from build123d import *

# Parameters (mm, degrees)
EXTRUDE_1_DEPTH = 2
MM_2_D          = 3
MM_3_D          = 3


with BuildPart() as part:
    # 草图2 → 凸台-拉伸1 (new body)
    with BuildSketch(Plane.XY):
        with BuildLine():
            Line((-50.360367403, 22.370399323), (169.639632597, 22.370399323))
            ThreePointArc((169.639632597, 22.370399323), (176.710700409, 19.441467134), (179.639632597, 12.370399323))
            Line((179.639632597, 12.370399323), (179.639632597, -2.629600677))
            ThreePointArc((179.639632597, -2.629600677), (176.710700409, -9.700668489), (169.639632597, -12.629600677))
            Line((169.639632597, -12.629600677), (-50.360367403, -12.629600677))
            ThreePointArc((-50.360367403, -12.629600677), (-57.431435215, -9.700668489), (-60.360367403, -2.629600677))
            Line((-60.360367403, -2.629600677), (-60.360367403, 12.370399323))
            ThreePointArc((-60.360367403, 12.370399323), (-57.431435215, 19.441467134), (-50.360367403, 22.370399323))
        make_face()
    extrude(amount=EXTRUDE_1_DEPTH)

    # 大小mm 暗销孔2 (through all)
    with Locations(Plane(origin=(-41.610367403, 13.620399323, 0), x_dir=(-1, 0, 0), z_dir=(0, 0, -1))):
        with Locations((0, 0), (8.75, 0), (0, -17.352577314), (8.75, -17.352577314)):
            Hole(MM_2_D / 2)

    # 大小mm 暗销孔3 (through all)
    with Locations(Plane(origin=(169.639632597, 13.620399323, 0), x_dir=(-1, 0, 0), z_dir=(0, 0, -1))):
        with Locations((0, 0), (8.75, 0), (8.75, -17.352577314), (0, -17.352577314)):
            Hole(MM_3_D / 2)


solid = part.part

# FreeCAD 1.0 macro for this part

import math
import FreeCAD as App
import Part
import Sketcher

V = App.Vector
Q = App.Units.Quantity

doc = App.newDocument("Part")
body = doc.addObject("PartDesign::Body", "Body")

# Sketch on XY plane
sketch1 = body.newObject("Sketcher::SketchObject", "Sketch")
sketch1.AttachmentSupport = (doc.getObject("XY_Plane"), [""])
sketch1.MapMode = "FlatFace"
sketch1.addGeometry(Part.LineSegment(V(169.639633, 22.370399, 0), V(-50.360367, 22.370399, 0)), False)
sketch1.addGeometry(Part.ArcOfCircle(Part.Circle(V(-50.360367, 12.370399, 0), V(0, 0, 1), 10), math.radians(90), math.radians(180)), False)
sketch1.addGeometry(Part.LineSegment(V(-60.360367, 12.370399, 0), V(-60.360367, -2.629601, 0)), False)
sketch1.addGeometry(Part.ArcOfCircle(Part.Circle(V(-50.360367, -2.629601, 0), V(0, 0, 1), 10), math.radians(180), math.radians(270)), False)
sketch1.addGeometry(Part.LineSegment(V(-50.360367, -12.629601, 0), V(169.639633, -12.629601, 0)), False)
sketch1.addGeometry(Part.ArcOfCircle(Part.Circle(V(169.639633, -2.629601, 0), V(0, 0, 1), 10), math.radians(-90), math.radians(0)), False)
sketch1.addGeometry(Part.LineSegment(V(179.639633, -2.629601, 0), V(179.639633, 12.370399, 0)), False)
sketch1.addGeometry(Part.ArcOfCircle(Part.Circle(V(169.639633, 12.370399, 0), V(0, 0, 1), 10), math.radians(0), math.radians(90)), False)
sketch1.addConstraint(Sketcher.Constraint("Tangent", 0, 2, 1, 1))
sketch1.addConstraint(Sketcher.Constraint("Tangent", 1, 2, 2, 1))
sketch1.addConstraint(Sketcher.Constraint("Tangent", 2, 2, 3, 1))
sketch1.addConstraint(Sketcher.Constraint("Tangent", 3, 2, 4, 1))
sketch1.addConstraint(Sketcher.Constraint("Tangent", 4, 2, 5, 1))
sketch1.addConstraint(Sketcher.Constraint("Tangent", 5, 2, 6, 1))
sketch1.addConstraint(Sketcher.Constraint("Tangent", 6, 2, 7, 1))
sketch1.addConstraint(Sketcher.Constraint("Tangent", 7, 2, 0, 1))
sketch1.addConstraint(Sketcher.Constraint("Horizontal", 0))
sketch1.addConstraint(Sketcher.Constraint("Vertical", 2))
sketch1.addConstraint(Sketcher.Constraint("Horizontal", 4))
sketch1.addConstraint(Sketcher.Constraint("Vertical", 6))
sketch1.addConstraint(Sketcher.Constraint("Equal", 1, 3))
sketch1.addConstraint(Sketcher.Constraint("Equal", 3, 5))
sketch1.addConstraint(Sketcher.Constraint("Equal", 5, 7))
sketch1.addConstraint(Sketcher.Constraint("Radius", 1, Q("10 mm")))
sketch1.addConstraint(Sketcher.Constraint("DistanceX", 0, 2, 0, 1, Q("220 mm")))
sketch1.addConstraint(Sketcher.Constraint("DistanceY", 2, 2, 2, 1, Q("15 mm")))
sketch1.addConstraint(Sketcher.Constraint("DistanceY", -1, 1, 1, 3, Q("12.370399 mm")))
sketch1.addConstraint(Sketcher.Constraint("DistanceX", 1, 3, -1, 1, Q("50.360367 mm")))
pad1 = body.newObject("PartDesign::Pad", "Pad")
pad1.Profile = sketch1
pad1.Length = 2

# Sketch on XY plane
sketch2 = body.newObject("Sketcher::SketchObject", "Sketch001")
sketch2.AttachmentSupport = (doc.getObject("XY_Plane"), [""])
sketch2.MapMode = "FlatFace"
sketch2.addGeometry(Part.Circle(V(-41.610367, 13.620399, 0), V(0, 0, 1), 1.5), False)
sketch2.addGeometry(Part.Circle(V(-50.360367, 13.620399, 0), V(0, 0, 1), 1.5), False)
sketch2.addGeometry(Part.Circle(V(-41.610367, -3.732178, 0), V(0, 0, 1), 1.5), False)
sketch2.addGeometry(Part.Circle(V(-50.360367, -3.732178, 0), V(0, 0, 1), 1.5), False)
sketch2.addConstraint(Sketcher.Constraint("Equal", 0, 1))
sketch2.addConstraint(Sketcher.Constraint("Equal", 1, 2))
sketch2.addConstraint(Sketcher.Constraint("Equal", 2, 3))
sketch2.addConstraint(Sketcher.Constraint("Horizontal", 0, 3, 1, 3))
sketch2.addConstraint(Sketcher.Constraint("Horizontal", 2, 3, 3, 3))
sketch2.addConstraint(Sketcher.Constraint("Vertical", 0, 3, 2, 3))
sketch2.addConstraint(Sketcher.Constraint("Vertical", 1, 3, 3, 3))
sketch2.addConstraint(Sketcher.Constraint("Diameter", 0, Q("3 mm")))
sketch2.addConstraint(Sketcher.Constraint("DistanceX", 1, 3, 0, 3, Q("8.75 mm")))
sketch2.addConstraint(Sketcher.Constraint("DistanceY", -1, 1, 0, 3, Q("13.620399 mm")))
sketch2.addConstraint(Sketcher.Constraint("DistanceX", 0, 3, -1, 1, Q("41.610367 mm")))
sketch2.addConstraint(Sketcher.Constraint("DistanceY", 2, 3, -1, 1, Q("3.732178 mm")))
doc.recompute()
hole = body.newObject("PartDesign::Hole", "Hole")
hole.Profile = sketch2
hole.ThreadType = "None"
hole.Diameter = 3
hole.DepthType = "ThroughAll"
hole.Reversed = True

# Sketch on XY plane
sketch3 = body.newObject("Sketcher::SketchObject", "Sketch002")
sketch3.AttachmentSupport = (doc.getObject("XY_Plane"), [""])
sketch3.MapMode = "FlatFace"
sketch3.addGeometry(Part.Circle(V(169.639633, 13.620399, 0), V(0, 0, 1), 1.5), False)
sketch3.addGeometry(Part.Circle(V(160.889633, 13.620399, 0), V(0, 0, 1), 1.5), False)
sketch3.addGeometry(Part.Circle(V(160.889633, -3.732178, 0), V(0, 0, 1), 1.5), False)
sketch3.addGeometry(Part.Circle(V(169.639633, -3.732178, 0), V(0, 0, 1), 1.5), False)
sketch3.addConstraint(Sketcher.Constraint("Equal", 0, 1))
sketch3.addConstraint(Sketcher.Constraint("Equal", 1, 2))
sketch3.addConstraint(Sketcher.Constraint("Equal", 2, 3))
sketch3.addConstraint(Sketcher.Constraint("Horizontal", 0, 3, 1, 3))
sketch3.addConstraint(Sketcher.Constraint("Horizontal", 2, 3, 3, 3))
sketch3.addConstraint(Sketcher.Constraint("Vertical", 1, 3, 2, 3))
sketch3.addConstraint(Sketcher.Constraint("Vertical", 0, 3, 3, 3))
sketch3.addConstraint(Sketcher.Constraint("Diameter", 0, Q("3 mm")))
sketch3.addConstraint(Sketcher.Constraint("DistanceX", 1, 3, 0, 3, Q("8.75 mm")))
sketch3.addConstraint(Sketcher.Constraint("DistanceY", -1, 1, 0, 3, Q("13.620399 mm")))
sketch3.addConstraint(Sketcher.Constraint("DistanceX", -1, 1, 0, 3, Q("169.639633 mm")))
sketch3.addConstraint(Sketcher.Constraint("DistanceY", 2, 3, -1, 1, Q("3.732178 mm")))
doc.recompute()
hole2 = body.newObject("PartDesign::Hole", "Hole001")
hole2.Profile = sketch3
hole2.ThreadType = "None"
hole2.Diameter = 3
hole2.DepthType = "ThroughAll"
hole2.Reversed = True

doc.recompute()
